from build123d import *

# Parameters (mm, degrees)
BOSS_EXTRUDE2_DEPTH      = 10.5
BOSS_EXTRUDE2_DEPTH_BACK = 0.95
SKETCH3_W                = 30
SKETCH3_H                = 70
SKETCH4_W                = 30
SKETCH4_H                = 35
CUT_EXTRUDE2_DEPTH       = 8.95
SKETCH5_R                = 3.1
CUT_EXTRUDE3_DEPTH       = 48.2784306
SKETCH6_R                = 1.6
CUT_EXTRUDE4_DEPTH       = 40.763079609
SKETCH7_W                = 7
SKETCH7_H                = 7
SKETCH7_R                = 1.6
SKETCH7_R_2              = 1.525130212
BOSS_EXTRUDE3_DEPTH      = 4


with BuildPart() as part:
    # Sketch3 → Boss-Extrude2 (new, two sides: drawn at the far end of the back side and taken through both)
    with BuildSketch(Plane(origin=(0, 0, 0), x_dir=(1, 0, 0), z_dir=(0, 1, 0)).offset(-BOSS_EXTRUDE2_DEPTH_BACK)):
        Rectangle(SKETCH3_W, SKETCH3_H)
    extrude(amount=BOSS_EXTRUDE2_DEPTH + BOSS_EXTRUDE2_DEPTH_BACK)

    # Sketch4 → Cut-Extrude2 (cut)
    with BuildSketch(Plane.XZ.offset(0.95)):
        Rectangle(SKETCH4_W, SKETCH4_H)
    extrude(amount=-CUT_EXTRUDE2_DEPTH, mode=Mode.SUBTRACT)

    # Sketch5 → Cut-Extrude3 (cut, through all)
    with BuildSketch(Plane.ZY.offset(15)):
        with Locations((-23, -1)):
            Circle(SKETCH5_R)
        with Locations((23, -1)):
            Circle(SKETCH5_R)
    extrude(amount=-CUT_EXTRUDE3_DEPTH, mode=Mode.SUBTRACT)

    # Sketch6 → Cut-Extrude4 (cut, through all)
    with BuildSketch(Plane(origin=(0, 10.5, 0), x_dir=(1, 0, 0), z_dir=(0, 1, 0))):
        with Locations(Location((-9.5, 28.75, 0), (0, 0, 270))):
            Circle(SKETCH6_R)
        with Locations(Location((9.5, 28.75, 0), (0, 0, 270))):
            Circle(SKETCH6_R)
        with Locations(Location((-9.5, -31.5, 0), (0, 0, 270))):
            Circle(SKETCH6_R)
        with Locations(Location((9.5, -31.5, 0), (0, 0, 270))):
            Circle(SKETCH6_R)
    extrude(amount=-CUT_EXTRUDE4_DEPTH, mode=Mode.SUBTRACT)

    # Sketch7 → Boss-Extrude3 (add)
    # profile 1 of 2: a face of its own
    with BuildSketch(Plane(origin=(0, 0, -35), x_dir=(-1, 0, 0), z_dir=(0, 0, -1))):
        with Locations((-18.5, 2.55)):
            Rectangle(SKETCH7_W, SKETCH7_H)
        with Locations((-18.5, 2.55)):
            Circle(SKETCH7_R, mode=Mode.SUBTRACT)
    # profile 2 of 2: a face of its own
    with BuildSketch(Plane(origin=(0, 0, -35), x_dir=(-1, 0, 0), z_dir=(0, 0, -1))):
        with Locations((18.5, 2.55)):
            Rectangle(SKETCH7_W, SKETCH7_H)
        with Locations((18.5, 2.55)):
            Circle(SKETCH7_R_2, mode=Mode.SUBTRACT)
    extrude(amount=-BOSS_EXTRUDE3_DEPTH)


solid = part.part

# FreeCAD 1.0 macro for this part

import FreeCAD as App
import Part
import Sketcher
from FreeCAD import Vector
Q = App.Units.Quantity


def add_polygon(sketch, points):
    """Adds a closed chain of lines whose ends are joined by coincident constraints."""
    first, n = sketch.GeometryCount, len(points)
    for a, b in zip(points, points[1:] + points[:1]):
        sketch.addGeometry(Part.LineSegment(App.Vector(*a, 0), App.Vector(*b, 0)), False)
    for i in range(n):
        sketch.addConstraint(Sketcher.Constraint("Coincident", first + i, 2, first + (i + 1) % n, 1))

doc = App.newDocument("Part")
params = doc.addObject("Spreadsheet::Sheet", "Params")
for row, (alias, value) in enumerate([
    ("sketch1_width", "30 mm"),
    ("sketch1_height", "70 mm"),
    ("pad1_length", "10.5 mm"),
    ("pad1_length2", "0.95 mm"),
    ("sketch2_width", "30 mm"),
    ("sketch2_height", "35 mm"),
    ("pocket1_length", "8.95 mm"),
    ("sketch3_diameter", "6.2 mm"),
    ("sketch4_diameter", "3.2 mm"),
    ("sketch5_diameter", "3.2 mm"),
    ("sketch5_width", "7 mm"),
    ("pad2_length", "4 mm"),
], start=1):
    params.set(f"A{row}", alias)
    params.set(f"B{row}", "=" + value)
    params.setAlias(f"B{row}", alias)

body = doc.addObject("PartDesign::Body", "Body")

sketch1 = doc.addObject("Sketcher::SketchObject", "Sketch")
body.addObject(sketch1)
sketch1.AttachmentSupport = (doc.XZ_Plane, [""])
sketch1.MapMode = "FlatFace"
add_polygon(sketch1, [(-15, -35), (-15, 35), (15, 35), (15, -35)])
sketch1.addConstraint(Sketcher.Constraint("Vertical", 0))
sketch1.addConstraint(Sketcher.Constraint("Horizontal", 1))
sketch1.addConstraint(Sketcher.Constraint("Vertical", 2))
sketch1.addConstraint(Sketcher.Constraint("Horizontal", 3))
sketch1.addConstraint(Sketcher.Constraint("Symmetric", 0, 2, 2, 2, -1, 1))
sketch1.addConstraint(Sketcher.Constraint("DistanceX", 1, 1, 1, 2, Q("30 mm")))
sketch1.addConstraint(Sketcher.Constraint("DistanceY", 0, 1, 0, 2, Q("70 mm")))
sketch1.setExpression("Constraints[9]", "Params.sketch1_width")
sketch1.setExpression("Constraints[10]", "Params.sketch1_height")
pad1 = doc.addObject("PartDesign::Pad", "Pad")
body.addObject(pad1)
pad1.Profile = sketch1
pad1.Type = "TwoLengths"
pad1.setExpression("Length", "Params.pad1_length")
pad1.setExpression("Length2", "Params.pad1_length2")
pad1.Reversed = True

sketch2 = doc.addObject("Sketcher::SketchObject", "Sketch001")
body.addObject(sketch2)
sketch2.AttachmentSupport = (doc.XZ_Plane, [""])
sketch2.MapMode = "FlatFace"
sketch2.AttachmentOffset = App.Placement(Vector(0, 0, 0.95), App.Rotation())
add_polygon(sketch2, [(-15, 18), (-15, -18), (15, -18), (15, 18)])
sketch2.addConstraint(Sketcher.Constraint("Vertical", 0))
sketch2.addConstraint(Sketcher.Constraint("Horizontal", 1))
sketch2.addConstraint(Sketcher.Constraint("Vertical", 2))
sketch2.addConstraint(Sketcher.Constraint("Horizontal", 3))
sketch2.addConstraint(Sketcher.Constraint("Symmetric", 0, 2, 2, 2, -1, 1))
sketch2.addConstraint(Sketcher.Constraint("DistanceX", 1, 1, 1, 2, Q("30 mm")))
sketch2.addConstraint(Sketcher.Constraint("DistanceY", 0, 2, 0, 1, Q("35 mm")))
sketch2.setExpression("Constraints[9]", "Params.sketch2_width")
sketch2.setExpression("Constraints[10]", "Params.sketch2_height")
pocket1 = doc.addObject("PartDesign::Pocket", "Pocket")
body.addObject(pocket1)
pocket1.Profile = sketch2
pocket1.setExpression("Length", "Params.pocket1_length")

sketch3 = doc.addObject("Sketcher::SketchObject", "Sketch002")
body.addObject(sketch3)
sketch3.AttachmentSupport = (doc.YZ_Plane, [""])
sketch3.MapMode = "FlatFace"
sketch3.AttachmentOffset = App.Placement(Vector(0, 0, -15), App.Rotation())
sketch3.addGeometry(Part.Circle(Vector(-1, -23, 0), Vector(0, 0, 1), 3.1), False)
sketch3.addGeometry(Part.Circle(Vector(-1, 23, 0), Vector(0, 0, 1), 3.1), False)
sketch3.addConstraint(Sketcher.Constraint("Equal", 0, 1))
sketch3.addConstraint(Sketcher.Constraint("Symmetric", 0, 3, 1, 3, -1))
sketch3.addConstraint(Sketcher.Constraint("Diameter", 0, Q("6.2 mm")))
sketch3.addConstraint(Sketcher.Constraint("DistanceX", 0, 3, -1, 1, Q("1 mm")))
sketch3.addConstraint(Sketcher.Constraint("DistanceY", 0, 3, -1, 1, Q("23 mm")))
sketch3.setExpression("Constraints[2]", "Params.sketch3_diameter")
pocket2 = doc.addObject("PartDesign::Pocket", "Pocket001")
body.addObject(pocket2)
pocket2.Profile = sketch3
pocket2.Type = "ThroughAll"
pocket2.Reversed = True

sketch4 = doc.addObject("Sketcher::SketchObject", "Sketch003")
body.addObject(sketch4)
sketch4.AttachmentSupport = (doc.XZ_Plane, [""])
sketch4.MapMode = "FlatFace"
sketch4.AttachmentOffset = App.Placement(Vector(0, 0, -10.5), App.Rotation())
sketch4.addGeometry(Part.Circle(Vector(-9.5, -28.8, 0), Vector(0, 0, 1), 1.6), False)
sketch4.addGeometry(Part.Circle(Vector(9.5, -28.8, 0), Vector(0, 0, 1), 1.6), False)
sketch4.addGeometry(Part.Circle(Vector(-9.5, 31.5, 0), Vector(0, 0, 1), 1.6), False)
sketch4.addGeometry(Part.Circle(Vector(9.5, 31.5, 0), Vector(0, 0, 1), 1.6), False)
sketch4.addConstraint(Sketcher.Constraint("Equal", 0, 1))
sketch4.addConstraint(Sketcher.Constraint("Equal", 1, 2))
sketch4.addConstraint(Sketcher.Constraint("Equal", 2, 3))
sketch4.addConstraint(Sketcher.Constraint("Symmetric", 0, 3, 1, 3, -2))
sketch4.addConstraint(Sketcher.Constraint("Symmetric", 2, 3, 3, 3, -2))
sketch4.addConstraint(Sketcher.Constraint("Vertical", 0, 3, 2, 3))
sketch4.addConstraint(Sketcher.Constraint("Diameter", 0, Q("3.2 mm")))
sketch4.addConstraint(Sketcher.Constraint("DistanceX", 0, 3, 1, 3, Q("19 mm")))
sketch4.addConstraint(Sketcher.Constraint("DistanceY", -1, 1, 2, 3, Q("31.5 mm")))
sketch4.addConstraint(Sketcher.Constraint("DistanceY", 0, 3, -1, 1, Q("28.75 mm")))
sketch4.setExpression("Constraints[6]", "Params.sketch4_diameter")
pocket3 = doc.addObject("PartDesign::Pocket", "Pocket002")
body.addObject(pocket3)
pocket3.Profile = sketch4
pocket3.Type = "ThroughAll"
pocket3.Reversed = True

sketch5 = doc.addObject("Sketcher::SketchObject", "Sketch004")
body.addObject(sketch5)
sketch5.AttachmentSupport = (doc.XY_Plane, [""])
sketch5.MapMode = "FlatFace"
sketch5.AttachmentOffset = App.Placement(Vector(0, 0, -35), App.Rotation())
add_polygon(sketch5, [(22, 6), (22, -0.9), (15, -0.9), (15, 6)])
sketch5.addGeometry(Part.Circle(Vector(18.5, 2.5, 0), Vector(0, 0, 1), 1.6), False)
add_polygon(sketch5, [(-15, 6), (-15, -0.9), (-22, -0.9), (-22, 6)])
sketch5.addGeometry(Part.Circle(Vector(-18.5, 2.5, 0), Vector(0, 0, 1), 1.5), False)
sketch5.addConstraint(Sketcher.Constraint("Vertical", 0))
sketch5.addConstraint(Sketcher.Constraint("Horizontal", 1))
sketch5.addConstraint(Sketcher.Constraint("Vertical", 2))
sketch5.addConstraint(Sketcher.Constraint("Horizontal", 3))
sketch5.addConstraint(Sketcher.Constraint("Vertical", 5))
sketch5.addConstraint(Sketcher.Constraint("Horizontal", 6))
sketch5.addConstraint(Sketcher.Constraint("Vertical", 7))
sketch5.addConstraint(Sketcher.Constraint("Horizontal", 8))
sketch5.addConstraint(Sketcher.Constraint("Symmetric", 4, 3, 9, 3, -2))
sketch5.addConstraint(Sketcher.Constraint("Symmetric", 1, 2, 5, 2, -2))
sketch5.addConstraint(Sketcher.Constraint("Symmetric", 3, 2, 7, 2, -2))
sketch5.addConstraint(Sketcher.Constraint("Equal", 8, 0))
sketch5.addConstraint(Sketcher.Constraint("Diameter", 4, Q("3.2 mm")))
sketch5.addConstraint(Sketcher.Constraint("DistanceX", 1, 2, 1, 1, Q("7 mm")))
sketch5.addConstraint(Sketcher.Constraint("DistanceX", -1, 1, 0, 2, Q("22 mm")))
sketch5.addConstraint(Sketcher.Constraint("DistanceX", 9, 3, 4, 3, Q("37 mm")))
sketch5.addConstraint(Sketcher.Constraint("DistanceY", 0, 2, 4, 3, Q("3.5 mm")))
sketch5.addConstraint(Sketcher.Constraint("Diameter", 9, Q("3.05026 mm")))
sketch5.addConstraint(Sketcher.Constraint("DistanceY", -1, 1, 4, 3, Q("2.55 mm")))
sketch5.setExpression("Constraints[20]", "Params.sketch5_diameter")
sketch5.setExpression("Constraints[21]", "Params.sketch5_width")
pad2 = doc.addObject("PartDesign::Pad", "Pad001")
body.addObject(pad2)
pad2.Profile = sketch5
pad2.setExpression("Length", "Params.pad2_length")

doc.recompute()
